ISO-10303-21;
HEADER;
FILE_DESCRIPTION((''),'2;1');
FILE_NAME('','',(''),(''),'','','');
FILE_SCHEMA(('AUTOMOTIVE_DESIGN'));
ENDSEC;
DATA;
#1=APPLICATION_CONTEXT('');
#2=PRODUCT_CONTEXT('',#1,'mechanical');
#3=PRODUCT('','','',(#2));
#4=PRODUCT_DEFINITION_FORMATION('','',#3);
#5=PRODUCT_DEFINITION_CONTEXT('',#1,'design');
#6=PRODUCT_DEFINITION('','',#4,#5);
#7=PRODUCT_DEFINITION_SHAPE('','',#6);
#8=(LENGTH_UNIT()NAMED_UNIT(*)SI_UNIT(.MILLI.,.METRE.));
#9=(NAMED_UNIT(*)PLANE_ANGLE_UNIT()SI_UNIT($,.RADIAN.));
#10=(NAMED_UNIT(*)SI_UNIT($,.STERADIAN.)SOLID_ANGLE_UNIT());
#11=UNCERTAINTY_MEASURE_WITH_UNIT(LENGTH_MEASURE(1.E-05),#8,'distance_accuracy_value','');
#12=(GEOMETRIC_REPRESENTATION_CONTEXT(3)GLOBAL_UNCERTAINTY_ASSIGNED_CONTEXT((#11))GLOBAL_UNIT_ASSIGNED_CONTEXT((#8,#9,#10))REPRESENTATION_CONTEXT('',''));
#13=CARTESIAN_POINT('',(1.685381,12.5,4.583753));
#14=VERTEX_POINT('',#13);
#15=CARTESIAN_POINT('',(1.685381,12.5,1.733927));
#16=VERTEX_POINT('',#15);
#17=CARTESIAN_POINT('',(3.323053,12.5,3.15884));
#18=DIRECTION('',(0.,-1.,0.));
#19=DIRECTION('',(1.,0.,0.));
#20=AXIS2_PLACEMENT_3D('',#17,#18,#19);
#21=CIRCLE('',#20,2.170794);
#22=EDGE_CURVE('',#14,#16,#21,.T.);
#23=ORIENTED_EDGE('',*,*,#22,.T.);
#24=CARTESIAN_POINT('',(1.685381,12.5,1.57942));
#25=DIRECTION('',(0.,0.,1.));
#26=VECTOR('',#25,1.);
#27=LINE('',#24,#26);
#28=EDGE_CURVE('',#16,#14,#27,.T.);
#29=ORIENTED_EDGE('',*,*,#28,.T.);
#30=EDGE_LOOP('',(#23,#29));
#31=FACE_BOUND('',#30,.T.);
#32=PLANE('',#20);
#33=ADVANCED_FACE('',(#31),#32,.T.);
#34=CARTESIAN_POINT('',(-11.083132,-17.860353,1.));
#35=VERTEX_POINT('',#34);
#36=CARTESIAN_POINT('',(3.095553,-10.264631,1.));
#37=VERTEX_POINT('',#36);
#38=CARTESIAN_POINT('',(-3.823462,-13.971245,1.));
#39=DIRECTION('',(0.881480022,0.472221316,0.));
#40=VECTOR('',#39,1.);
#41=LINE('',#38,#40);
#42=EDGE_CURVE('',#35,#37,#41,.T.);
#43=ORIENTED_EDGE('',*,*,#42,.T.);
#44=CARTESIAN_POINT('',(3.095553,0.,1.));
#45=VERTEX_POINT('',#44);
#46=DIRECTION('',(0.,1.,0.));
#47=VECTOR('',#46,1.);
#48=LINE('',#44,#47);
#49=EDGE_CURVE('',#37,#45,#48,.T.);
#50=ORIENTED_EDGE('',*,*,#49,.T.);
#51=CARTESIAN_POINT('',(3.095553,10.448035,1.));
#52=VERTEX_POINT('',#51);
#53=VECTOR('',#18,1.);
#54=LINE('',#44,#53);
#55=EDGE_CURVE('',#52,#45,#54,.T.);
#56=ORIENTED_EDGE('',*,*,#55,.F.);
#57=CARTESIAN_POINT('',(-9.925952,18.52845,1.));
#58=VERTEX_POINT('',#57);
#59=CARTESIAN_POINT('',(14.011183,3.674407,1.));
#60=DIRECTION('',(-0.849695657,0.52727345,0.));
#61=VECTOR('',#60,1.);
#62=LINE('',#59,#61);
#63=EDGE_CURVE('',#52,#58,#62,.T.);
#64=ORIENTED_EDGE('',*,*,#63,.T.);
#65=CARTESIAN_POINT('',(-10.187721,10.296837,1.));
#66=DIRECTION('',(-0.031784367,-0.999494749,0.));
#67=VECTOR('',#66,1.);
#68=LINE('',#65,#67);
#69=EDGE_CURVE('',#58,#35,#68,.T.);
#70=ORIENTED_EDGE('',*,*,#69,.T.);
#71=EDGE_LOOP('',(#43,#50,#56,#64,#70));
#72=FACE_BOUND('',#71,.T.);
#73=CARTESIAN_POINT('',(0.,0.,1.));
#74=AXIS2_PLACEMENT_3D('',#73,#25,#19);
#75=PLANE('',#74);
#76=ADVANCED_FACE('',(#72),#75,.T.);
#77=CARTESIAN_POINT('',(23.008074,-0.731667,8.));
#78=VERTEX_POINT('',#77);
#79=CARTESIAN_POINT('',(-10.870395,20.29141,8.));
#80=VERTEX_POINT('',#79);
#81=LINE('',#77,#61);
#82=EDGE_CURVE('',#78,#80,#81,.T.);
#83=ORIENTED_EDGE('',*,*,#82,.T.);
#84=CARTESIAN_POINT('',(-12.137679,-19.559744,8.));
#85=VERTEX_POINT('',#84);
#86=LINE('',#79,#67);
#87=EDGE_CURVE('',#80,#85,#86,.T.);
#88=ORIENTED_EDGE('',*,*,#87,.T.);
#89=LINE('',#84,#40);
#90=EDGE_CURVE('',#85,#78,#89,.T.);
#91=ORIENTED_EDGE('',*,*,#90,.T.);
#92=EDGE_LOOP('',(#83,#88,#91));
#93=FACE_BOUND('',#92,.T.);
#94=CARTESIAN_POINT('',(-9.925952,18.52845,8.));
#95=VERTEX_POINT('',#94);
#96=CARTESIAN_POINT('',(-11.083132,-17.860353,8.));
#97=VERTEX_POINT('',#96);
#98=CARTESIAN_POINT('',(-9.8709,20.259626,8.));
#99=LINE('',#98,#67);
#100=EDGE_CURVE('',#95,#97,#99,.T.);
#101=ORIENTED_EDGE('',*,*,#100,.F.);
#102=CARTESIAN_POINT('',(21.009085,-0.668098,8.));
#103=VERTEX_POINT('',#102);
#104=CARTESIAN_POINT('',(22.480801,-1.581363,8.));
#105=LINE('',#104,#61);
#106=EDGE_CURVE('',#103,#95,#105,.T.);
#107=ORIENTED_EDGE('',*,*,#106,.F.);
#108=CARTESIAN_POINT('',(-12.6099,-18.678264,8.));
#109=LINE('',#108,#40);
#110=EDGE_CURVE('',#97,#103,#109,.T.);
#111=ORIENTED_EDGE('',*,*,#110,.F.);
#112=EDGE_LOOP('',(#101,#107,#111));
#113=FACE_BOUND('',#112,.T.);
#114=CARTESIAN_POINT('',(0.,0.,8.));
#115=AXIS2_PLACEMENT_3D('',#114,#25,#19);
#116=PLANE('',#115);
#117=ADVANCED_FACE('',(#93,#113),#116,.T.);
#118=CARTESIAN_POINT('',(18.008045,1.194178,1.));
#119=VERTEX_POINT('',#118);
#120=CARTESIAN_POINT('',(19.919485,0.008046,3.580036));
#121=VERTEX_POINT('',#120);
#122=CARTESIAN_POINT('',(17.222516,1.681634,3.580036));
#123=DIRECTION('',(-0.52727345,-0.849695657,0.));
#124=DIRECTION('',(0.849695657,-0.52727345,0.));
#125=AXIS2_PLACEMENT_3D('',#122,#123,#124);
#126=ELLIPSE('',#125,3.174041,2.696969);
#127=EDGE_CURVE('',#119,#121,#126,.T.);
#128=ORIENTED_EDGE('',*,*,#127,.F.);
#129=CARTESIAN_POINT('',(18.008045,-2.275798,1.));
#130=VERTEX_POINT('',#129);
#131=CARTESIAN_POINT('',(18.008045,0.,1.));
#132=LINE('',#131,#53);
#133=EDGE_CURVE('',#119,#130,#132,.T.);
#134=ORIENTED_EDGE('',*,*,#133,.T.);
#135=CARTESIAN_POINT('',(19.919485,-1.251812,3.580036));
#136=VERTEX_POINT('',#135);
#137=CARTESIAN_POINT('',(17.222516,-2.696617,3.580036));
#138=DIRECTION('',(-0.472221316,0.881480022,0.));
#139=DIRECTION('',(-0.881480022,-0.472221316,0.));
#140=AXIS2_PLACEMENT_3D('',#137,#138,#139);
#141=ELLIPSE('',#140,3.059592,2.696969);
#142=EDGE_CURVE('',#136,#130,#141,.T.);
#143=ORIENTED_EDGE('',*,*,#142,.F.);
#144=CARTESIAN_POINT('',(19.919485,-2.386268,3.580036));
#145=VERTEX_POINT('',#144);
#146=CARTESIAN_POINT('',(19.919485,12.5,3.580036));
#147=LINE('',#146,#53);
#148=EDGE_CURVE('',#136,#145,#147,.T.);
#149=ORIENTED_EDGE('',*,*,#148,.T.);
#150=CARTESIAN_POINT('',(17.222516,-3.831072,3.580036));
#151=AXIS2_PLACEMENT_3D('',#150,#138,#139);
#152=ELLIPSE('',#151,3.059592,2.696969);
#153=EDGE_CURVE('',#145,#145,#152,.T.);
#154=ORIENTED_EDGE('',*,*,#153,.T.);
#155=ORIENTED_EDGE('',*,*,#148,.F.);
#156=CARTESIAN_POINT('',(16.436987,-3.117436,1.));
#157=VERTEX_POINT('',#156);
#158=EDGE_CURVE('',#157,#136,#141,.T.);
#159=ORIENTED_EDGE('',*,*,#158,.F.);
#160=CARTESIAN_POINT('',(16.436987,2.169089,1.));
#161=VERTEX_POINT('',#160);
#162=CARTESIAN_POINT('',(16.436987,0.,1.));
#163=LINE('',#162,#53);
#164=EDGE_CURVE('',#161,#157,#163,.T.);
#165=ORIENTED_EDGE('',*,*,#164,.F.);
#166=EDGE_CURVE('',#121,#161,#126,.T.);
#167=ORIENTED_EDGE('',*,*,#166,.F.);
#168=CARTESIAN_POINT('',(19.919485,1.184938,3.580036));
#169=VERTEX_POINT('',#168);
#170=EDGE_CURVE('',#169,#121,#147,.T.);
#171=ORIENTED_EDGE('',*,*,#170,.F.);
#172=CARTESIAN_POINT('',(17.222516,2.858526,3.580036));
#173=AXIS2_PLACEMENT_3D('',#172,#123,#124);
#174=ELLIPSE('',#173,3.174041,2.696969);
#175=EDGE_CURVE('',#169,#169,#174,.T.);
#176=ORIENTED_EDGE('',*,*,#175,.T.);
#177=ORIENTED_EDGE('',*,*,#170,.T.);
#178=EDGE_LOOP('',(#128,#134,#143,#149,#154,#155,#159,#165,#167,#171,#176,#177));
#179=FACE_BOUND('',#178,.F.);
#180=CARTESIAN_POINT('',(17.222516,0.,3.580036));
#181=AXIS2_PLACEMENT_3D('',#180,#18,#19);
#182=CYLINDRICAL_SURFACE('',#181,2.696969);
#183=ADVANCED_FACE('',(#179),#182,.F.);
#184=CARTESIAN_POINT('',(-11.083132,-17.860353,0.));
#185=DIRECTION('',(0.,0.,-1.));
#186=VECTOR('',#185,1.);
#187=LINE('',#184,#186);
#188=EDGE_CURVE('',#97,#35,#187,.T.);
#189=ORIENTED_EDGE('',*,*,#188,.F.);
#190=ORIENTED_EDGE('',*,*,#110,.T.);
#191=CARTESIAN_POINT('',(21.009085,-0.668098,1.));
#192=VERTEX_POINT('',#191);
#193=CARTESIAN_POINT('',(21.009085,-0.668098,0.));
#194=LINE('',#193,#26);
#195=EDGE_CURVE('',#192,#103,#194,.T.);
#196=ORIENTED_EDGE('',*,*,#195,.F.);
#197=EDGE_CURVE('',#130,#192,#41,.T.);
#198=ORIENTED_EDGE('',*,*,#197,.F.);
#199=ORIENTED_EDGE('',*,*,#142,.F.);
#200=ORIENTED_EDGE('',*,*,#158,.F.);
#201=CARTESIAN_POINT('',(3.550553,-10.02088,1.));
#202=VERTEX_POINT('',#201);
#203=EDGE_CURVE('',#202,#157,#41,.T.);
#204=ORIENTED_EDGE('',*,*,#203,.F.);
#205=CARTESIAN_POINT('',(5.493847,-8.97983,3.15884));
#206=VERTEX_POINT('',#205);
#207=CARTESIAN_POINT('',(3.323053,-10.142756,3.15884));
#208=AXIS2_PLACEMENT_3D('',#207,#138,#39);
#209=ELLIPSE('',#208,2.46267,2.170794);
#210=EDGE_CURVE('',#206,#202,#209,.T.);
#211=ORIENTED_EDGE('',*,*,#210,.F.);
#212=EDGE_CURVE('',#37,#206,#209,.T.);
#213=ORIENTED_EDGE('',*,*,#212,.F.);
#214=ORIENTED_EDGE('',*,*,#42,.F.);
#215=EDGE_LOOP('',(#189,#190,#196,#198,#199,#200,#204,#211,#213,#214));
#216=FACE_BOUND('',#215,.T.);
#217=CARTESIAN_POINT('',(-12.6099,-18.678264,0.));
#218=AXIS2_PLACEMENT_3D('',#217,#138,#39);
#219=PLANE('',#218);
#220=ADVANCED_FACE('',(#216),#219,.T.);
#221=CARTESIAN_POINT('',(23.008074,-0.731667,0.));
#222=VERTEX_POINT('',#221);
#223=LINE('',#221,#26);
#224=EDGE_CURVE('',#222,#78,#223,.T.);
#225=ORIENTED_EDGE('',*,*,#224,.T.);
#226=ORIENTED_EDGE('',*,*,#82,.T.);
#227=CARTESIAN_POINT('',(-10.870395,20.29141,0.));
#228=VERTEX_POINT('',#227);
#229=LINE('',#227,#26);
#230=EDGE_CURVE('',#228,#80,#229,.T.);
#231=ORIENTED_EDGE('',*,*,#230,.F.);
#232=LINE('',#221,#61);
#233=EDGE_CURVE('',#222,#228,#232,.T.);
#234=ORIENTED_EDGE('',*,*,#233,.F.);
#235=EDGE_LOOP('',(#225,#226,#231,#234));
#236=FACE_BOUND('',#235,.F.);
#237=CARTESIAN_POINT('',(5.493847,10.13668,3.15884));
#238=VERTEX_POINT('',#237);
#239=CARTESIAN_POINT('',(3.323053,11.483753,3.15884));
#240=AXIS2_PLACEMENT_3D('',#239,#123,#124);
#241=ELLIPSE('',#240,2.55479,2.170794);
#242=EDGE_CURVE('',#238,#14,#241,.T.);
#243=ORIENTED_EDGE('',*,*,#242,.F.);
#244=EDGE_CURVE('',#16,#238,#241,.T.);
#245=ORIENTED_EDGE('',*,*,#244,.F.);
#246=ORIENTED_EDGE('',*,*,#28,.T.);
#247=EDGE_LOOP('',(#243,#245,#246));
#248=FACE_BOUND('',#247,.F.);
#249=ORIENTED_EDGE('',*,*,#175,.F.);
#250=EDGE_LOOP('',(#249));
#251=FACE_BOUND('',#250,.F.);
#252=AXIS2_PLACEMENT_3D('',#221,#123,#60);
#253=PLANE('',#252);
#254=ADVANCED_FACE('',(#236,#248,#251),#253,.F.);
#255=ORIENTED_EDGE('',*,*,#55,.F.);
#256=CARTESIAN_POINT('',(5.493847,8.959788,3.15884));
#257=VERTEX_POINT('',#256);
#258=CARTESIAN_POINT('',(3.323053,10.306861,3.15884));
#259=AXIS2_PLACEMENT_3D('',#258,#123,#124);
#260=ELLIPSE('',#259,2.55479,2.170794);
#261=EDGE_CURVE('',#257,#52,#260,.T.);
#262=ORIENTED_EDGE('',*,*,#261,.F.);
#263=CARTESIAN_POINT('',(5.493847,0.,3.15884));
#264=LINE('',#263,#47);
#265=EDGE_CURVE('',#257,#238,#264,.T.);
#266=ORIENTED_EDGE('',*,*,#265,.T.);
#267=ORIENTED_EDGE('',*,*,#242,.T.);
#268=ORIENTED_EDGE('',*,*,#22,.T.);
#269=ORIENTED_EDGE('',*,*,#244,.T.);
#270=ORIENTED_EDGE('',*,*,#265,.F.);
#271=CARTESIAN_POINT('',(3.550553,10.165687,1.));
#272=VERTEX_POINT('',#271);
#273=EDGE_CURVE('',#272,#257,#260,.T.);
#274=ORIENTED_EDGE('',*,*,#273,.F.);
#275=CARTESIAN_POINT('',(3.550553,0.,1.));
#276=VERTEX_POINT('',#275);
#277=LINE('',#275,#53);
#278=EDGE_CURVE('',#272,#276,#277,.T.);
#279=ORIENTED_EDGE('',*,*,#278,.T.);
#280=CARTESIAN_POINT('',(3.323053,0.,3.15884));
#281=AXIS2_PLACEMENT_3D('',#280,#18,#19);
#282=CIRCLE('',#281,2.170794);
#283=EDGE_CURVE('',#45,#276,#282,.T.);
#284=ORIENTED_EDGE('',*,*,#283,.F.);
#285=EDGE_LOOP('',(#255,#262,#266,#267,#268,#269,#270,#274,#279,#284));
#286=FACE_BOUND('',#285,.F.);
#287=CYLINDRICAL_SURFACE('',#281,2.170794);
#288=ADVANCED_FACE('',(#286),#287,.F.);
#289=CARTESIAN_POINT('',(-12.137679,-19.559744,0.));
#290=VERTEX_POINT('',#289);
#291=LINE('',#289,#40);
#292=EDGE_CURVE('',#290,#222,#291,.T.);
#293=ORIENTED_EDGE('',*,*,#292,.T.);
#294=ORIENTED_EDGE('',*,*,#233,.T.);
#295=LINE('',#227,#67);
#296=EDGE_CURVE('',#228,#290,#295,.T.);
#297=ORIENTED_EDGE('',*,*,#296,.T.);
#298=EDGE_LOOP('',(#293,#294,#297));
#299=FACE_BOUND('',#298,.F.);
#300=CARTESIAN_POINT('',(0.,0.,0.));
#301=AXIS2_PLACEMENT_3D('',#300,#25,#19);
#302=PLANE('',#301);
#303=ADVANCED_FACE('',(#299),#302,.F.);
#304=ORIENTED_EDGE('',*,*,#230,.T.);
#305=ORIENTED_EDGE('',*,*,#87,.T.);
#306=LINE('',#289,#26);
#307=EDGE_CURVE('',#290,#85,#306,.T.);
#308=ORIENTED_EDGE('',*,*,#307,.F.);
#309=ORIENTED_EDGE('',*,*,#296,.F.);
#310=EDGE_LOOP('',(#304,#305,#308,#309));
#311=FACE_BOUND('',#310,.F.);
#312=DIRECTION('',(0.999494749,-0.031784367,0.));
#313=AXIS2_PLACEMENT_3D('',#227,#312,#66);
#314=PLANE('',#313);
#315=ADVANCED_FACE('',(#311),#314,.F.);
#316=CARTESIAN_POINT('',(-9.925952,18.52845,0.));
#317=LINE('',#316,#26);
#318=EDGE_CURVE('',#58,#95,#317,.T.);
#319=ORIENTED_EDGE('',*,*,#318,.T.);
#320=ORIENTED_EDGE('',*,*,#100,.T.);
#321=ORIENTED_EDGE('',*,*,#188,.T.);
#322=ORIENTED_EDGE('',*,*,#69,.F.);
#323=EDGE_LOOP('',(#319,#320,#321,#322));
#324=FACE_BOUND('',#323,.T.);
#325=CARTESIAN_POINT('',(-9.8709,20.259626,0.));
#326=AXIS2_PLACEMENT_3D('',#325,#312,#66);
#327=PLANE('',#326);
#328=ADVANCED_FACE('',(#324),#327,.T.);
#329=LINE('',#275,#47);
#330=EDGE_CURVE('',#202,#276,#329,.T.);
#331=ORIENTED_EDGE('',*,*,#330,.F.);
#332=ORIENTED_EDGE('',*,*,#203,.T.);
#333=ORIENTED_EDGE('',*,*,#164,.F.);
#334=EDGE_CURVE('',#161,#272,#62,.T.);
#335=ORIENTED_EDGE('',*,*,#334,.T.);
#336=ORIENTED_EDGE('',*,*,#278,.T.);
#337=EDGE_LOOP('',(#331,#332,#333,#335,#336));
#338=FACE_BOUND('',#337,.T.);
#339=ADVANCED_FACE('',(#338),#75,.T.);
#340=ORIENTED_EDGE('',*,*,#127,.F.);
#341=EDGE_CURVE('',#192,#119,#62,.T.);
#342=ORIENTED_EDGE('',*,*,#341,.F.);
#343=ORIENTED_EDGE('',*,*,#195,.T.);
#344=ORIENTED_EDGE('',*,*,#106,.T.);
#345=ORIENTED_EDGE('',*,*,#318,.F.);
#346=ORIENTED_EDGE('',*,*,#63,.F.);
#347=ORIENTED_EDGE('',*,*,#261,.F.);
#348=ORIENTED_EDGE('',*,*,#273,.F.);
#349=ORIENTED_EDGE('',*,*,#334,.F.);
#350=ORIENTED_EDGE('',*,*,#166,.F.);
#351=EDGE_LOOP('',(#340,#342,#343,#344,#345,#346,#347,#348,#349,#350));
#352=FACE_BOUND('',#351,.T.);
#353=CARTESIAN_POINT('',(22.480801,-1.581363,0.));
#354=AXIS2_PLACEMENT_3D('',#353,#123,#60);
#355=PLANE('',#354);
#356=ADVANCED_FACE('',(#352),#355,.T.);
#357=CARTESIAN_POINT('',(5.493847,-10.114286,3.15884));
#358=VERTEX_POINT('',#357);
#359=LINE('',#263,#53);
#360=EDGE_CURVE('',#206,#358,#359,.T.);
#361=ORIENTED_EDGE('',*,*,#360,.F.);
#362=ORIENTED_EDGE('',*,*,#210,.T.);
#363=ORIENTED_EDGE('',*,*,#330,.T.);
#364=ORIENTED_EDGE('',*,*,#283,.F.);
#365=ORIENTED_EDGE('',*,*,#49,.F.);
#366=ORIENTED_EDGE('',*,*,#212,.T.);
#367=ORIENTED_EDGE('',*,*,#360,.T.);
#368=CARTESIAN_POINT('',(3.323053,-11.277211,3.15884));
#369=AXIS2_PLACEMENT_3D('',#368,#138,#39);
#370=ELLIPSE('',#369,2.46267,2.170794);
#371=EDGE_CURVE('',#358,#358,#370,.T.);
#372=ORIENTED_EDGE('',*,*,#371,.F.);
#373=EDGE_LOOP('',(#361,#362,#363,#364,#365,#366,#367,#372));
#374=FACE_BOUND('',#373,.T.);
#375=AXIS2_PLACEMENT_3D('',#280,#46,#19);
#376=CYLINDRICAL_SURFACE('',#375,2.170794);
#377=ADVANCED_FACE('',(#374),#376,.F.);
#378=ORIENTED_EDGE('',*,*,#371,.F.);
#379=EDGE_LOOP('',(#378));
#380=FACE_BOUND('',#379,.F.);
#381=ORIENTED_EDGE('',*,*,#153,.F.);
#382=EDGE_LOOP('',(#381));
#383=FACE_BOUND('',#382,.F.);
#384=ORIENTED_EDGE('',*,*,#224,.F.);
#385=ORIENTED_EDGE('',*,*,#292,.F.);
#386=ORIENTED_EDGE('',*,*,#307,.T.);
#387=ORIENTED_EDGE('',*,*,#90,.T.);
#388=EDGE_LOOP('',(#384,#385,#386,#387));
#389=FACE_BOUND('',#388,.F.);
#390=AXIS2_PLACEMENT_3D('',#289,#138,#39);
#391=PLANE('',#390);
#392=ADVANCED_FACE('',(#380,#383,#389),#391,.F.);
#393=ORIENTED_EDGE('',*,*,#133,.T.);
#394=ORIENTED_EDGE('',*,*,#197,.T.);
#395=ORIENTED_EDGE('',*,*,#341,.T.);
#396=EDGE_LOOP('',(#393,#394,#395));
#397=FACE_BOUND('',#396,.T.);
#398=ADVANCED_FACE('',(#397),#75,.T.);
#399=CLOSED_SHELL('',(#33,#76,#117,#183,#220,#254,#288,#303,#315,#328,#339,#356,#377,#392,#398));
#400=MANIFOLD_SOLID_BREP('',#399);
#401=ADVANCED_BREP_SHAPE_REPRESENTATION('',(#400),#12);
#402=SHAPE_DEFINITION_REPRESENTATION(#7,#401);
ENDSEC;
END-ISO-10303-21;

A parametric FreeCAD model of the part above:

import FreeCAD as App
import Part
import Sketcher
from FreeCAD import Vector
Q = App.Units.Quantity


def faces_at(feature, points):
    """Names of the faces that lie closest to the given points."""
    faces = feature.Shape.Faces
    near = lambda p: min(range(len(faces)), key=lambda i: faces[i].distToShape(Part.Vertex(*p))[0])
    return sorted({f"Face{near(p) + 1}" for p in points})

doc = App.newDocument("Part")
body = doc.addObject("PartDesign::Body", "Body")

sketch1 = body.newObject("Sketcher::SketchObject", "Sketch")
sketch1.AttachmentSupport = (doc.getObject("XY_Plane"), [""])
sketch1.MapMode = "FlatFace"
sketch1.addGeometry([
    Part.LineSegment(Vector(-12, -20, 0), Vector(23, -1, 0)),
    Part.LineSegment(Vector(23, -1, 0), Vector(-11, 20, 0)),
    Part.LineSegment(Vector(-11, 20, 0), Vector(-12, -20, 0)),
], False)
sketch1.addConstraint([
    Sketcher.Constraint("Coincident", 0, 2, 1, 1),
    Sketcher.Constraint("Coincident", 1, 2, 2, 1),
    Sketcher.Constraint("Coincident", 2, 2, 0, 1),
    Sketcher.Constraint("Equal", 0, 1),
    Sketcher.Constraint("Equal", 1, 2),
    Sketcher.Constraint("Distance", 0, Q("39.871298 mm")),
    Sketcher.Constraint("DistanceY", -1, 1, 1, 2, Q("20.29141 mm")),
    Sketcher.Constraint("DistanceX", 2, 2, -1, 1, Q("12.137679 mm")),
    Sketcher.Constraint("DistanceX", 1, 2, 0, 2, Q("33.878469 mm")),
])
pad1 = body.newObject("PartDesign::Pad", "Pad")
pad1.Profile = sketch1
pad1.Length = 8
doc.recompute()

thickness = body.newObject("PartDesign::Thickness", "Thickness")
thickness.Base = (pad1, faces_at(pad1, [(5.435, 0.366, 8)]))
thickness.Value = 1
thickness.Reversed = True
thickness.Join = "Arc"

sketch2 = body.newObject("Sketcher::SketchObject", "Sketch001")
sketch2.AttachmentSupport = (doc.getObject("XZ_Plane"), [""])
sketch2.MapMode = "FlatFace"
sketch2.addGeometry([
    Part.Circle(Vector(3.3, 3.2, 0), Vector(0, 0, 1), 2.2),
    Part.Circle(Vector(17.2, 3.6, 0), Vector(0, 0, 1), 2.7),
], False)
sketch2.addConstraint([
    Sketcher.Constraint("Diameter", 1, Q("5.393938 mm")),
    Sketcher.Constraint("Diameter", 0, Q("4.341588 mm")),
    Sketcher.Constraint("DistanceY", -1, 1, 0, 3, Q("3.15884 mm")),
    Sketcher.Constraint("DistanceX", -1, 1, 0, 3, Q("3.323053 mm")),
    Sketcher.Constraint("DistanceX", -1, 1, 1, 3, Q("17.222516 mm")),
    Sketcher.Constraint("DistanceY", -1, 1, 1, 3, Q("3.580036 mm")),
])
pocket1 = body.newObject("PartDesign::Pocket", "Pocket")
pocket1.Profile = sketch2
pocket1.Length = 25
pocket1.Midplane = True

doc.recompute()
